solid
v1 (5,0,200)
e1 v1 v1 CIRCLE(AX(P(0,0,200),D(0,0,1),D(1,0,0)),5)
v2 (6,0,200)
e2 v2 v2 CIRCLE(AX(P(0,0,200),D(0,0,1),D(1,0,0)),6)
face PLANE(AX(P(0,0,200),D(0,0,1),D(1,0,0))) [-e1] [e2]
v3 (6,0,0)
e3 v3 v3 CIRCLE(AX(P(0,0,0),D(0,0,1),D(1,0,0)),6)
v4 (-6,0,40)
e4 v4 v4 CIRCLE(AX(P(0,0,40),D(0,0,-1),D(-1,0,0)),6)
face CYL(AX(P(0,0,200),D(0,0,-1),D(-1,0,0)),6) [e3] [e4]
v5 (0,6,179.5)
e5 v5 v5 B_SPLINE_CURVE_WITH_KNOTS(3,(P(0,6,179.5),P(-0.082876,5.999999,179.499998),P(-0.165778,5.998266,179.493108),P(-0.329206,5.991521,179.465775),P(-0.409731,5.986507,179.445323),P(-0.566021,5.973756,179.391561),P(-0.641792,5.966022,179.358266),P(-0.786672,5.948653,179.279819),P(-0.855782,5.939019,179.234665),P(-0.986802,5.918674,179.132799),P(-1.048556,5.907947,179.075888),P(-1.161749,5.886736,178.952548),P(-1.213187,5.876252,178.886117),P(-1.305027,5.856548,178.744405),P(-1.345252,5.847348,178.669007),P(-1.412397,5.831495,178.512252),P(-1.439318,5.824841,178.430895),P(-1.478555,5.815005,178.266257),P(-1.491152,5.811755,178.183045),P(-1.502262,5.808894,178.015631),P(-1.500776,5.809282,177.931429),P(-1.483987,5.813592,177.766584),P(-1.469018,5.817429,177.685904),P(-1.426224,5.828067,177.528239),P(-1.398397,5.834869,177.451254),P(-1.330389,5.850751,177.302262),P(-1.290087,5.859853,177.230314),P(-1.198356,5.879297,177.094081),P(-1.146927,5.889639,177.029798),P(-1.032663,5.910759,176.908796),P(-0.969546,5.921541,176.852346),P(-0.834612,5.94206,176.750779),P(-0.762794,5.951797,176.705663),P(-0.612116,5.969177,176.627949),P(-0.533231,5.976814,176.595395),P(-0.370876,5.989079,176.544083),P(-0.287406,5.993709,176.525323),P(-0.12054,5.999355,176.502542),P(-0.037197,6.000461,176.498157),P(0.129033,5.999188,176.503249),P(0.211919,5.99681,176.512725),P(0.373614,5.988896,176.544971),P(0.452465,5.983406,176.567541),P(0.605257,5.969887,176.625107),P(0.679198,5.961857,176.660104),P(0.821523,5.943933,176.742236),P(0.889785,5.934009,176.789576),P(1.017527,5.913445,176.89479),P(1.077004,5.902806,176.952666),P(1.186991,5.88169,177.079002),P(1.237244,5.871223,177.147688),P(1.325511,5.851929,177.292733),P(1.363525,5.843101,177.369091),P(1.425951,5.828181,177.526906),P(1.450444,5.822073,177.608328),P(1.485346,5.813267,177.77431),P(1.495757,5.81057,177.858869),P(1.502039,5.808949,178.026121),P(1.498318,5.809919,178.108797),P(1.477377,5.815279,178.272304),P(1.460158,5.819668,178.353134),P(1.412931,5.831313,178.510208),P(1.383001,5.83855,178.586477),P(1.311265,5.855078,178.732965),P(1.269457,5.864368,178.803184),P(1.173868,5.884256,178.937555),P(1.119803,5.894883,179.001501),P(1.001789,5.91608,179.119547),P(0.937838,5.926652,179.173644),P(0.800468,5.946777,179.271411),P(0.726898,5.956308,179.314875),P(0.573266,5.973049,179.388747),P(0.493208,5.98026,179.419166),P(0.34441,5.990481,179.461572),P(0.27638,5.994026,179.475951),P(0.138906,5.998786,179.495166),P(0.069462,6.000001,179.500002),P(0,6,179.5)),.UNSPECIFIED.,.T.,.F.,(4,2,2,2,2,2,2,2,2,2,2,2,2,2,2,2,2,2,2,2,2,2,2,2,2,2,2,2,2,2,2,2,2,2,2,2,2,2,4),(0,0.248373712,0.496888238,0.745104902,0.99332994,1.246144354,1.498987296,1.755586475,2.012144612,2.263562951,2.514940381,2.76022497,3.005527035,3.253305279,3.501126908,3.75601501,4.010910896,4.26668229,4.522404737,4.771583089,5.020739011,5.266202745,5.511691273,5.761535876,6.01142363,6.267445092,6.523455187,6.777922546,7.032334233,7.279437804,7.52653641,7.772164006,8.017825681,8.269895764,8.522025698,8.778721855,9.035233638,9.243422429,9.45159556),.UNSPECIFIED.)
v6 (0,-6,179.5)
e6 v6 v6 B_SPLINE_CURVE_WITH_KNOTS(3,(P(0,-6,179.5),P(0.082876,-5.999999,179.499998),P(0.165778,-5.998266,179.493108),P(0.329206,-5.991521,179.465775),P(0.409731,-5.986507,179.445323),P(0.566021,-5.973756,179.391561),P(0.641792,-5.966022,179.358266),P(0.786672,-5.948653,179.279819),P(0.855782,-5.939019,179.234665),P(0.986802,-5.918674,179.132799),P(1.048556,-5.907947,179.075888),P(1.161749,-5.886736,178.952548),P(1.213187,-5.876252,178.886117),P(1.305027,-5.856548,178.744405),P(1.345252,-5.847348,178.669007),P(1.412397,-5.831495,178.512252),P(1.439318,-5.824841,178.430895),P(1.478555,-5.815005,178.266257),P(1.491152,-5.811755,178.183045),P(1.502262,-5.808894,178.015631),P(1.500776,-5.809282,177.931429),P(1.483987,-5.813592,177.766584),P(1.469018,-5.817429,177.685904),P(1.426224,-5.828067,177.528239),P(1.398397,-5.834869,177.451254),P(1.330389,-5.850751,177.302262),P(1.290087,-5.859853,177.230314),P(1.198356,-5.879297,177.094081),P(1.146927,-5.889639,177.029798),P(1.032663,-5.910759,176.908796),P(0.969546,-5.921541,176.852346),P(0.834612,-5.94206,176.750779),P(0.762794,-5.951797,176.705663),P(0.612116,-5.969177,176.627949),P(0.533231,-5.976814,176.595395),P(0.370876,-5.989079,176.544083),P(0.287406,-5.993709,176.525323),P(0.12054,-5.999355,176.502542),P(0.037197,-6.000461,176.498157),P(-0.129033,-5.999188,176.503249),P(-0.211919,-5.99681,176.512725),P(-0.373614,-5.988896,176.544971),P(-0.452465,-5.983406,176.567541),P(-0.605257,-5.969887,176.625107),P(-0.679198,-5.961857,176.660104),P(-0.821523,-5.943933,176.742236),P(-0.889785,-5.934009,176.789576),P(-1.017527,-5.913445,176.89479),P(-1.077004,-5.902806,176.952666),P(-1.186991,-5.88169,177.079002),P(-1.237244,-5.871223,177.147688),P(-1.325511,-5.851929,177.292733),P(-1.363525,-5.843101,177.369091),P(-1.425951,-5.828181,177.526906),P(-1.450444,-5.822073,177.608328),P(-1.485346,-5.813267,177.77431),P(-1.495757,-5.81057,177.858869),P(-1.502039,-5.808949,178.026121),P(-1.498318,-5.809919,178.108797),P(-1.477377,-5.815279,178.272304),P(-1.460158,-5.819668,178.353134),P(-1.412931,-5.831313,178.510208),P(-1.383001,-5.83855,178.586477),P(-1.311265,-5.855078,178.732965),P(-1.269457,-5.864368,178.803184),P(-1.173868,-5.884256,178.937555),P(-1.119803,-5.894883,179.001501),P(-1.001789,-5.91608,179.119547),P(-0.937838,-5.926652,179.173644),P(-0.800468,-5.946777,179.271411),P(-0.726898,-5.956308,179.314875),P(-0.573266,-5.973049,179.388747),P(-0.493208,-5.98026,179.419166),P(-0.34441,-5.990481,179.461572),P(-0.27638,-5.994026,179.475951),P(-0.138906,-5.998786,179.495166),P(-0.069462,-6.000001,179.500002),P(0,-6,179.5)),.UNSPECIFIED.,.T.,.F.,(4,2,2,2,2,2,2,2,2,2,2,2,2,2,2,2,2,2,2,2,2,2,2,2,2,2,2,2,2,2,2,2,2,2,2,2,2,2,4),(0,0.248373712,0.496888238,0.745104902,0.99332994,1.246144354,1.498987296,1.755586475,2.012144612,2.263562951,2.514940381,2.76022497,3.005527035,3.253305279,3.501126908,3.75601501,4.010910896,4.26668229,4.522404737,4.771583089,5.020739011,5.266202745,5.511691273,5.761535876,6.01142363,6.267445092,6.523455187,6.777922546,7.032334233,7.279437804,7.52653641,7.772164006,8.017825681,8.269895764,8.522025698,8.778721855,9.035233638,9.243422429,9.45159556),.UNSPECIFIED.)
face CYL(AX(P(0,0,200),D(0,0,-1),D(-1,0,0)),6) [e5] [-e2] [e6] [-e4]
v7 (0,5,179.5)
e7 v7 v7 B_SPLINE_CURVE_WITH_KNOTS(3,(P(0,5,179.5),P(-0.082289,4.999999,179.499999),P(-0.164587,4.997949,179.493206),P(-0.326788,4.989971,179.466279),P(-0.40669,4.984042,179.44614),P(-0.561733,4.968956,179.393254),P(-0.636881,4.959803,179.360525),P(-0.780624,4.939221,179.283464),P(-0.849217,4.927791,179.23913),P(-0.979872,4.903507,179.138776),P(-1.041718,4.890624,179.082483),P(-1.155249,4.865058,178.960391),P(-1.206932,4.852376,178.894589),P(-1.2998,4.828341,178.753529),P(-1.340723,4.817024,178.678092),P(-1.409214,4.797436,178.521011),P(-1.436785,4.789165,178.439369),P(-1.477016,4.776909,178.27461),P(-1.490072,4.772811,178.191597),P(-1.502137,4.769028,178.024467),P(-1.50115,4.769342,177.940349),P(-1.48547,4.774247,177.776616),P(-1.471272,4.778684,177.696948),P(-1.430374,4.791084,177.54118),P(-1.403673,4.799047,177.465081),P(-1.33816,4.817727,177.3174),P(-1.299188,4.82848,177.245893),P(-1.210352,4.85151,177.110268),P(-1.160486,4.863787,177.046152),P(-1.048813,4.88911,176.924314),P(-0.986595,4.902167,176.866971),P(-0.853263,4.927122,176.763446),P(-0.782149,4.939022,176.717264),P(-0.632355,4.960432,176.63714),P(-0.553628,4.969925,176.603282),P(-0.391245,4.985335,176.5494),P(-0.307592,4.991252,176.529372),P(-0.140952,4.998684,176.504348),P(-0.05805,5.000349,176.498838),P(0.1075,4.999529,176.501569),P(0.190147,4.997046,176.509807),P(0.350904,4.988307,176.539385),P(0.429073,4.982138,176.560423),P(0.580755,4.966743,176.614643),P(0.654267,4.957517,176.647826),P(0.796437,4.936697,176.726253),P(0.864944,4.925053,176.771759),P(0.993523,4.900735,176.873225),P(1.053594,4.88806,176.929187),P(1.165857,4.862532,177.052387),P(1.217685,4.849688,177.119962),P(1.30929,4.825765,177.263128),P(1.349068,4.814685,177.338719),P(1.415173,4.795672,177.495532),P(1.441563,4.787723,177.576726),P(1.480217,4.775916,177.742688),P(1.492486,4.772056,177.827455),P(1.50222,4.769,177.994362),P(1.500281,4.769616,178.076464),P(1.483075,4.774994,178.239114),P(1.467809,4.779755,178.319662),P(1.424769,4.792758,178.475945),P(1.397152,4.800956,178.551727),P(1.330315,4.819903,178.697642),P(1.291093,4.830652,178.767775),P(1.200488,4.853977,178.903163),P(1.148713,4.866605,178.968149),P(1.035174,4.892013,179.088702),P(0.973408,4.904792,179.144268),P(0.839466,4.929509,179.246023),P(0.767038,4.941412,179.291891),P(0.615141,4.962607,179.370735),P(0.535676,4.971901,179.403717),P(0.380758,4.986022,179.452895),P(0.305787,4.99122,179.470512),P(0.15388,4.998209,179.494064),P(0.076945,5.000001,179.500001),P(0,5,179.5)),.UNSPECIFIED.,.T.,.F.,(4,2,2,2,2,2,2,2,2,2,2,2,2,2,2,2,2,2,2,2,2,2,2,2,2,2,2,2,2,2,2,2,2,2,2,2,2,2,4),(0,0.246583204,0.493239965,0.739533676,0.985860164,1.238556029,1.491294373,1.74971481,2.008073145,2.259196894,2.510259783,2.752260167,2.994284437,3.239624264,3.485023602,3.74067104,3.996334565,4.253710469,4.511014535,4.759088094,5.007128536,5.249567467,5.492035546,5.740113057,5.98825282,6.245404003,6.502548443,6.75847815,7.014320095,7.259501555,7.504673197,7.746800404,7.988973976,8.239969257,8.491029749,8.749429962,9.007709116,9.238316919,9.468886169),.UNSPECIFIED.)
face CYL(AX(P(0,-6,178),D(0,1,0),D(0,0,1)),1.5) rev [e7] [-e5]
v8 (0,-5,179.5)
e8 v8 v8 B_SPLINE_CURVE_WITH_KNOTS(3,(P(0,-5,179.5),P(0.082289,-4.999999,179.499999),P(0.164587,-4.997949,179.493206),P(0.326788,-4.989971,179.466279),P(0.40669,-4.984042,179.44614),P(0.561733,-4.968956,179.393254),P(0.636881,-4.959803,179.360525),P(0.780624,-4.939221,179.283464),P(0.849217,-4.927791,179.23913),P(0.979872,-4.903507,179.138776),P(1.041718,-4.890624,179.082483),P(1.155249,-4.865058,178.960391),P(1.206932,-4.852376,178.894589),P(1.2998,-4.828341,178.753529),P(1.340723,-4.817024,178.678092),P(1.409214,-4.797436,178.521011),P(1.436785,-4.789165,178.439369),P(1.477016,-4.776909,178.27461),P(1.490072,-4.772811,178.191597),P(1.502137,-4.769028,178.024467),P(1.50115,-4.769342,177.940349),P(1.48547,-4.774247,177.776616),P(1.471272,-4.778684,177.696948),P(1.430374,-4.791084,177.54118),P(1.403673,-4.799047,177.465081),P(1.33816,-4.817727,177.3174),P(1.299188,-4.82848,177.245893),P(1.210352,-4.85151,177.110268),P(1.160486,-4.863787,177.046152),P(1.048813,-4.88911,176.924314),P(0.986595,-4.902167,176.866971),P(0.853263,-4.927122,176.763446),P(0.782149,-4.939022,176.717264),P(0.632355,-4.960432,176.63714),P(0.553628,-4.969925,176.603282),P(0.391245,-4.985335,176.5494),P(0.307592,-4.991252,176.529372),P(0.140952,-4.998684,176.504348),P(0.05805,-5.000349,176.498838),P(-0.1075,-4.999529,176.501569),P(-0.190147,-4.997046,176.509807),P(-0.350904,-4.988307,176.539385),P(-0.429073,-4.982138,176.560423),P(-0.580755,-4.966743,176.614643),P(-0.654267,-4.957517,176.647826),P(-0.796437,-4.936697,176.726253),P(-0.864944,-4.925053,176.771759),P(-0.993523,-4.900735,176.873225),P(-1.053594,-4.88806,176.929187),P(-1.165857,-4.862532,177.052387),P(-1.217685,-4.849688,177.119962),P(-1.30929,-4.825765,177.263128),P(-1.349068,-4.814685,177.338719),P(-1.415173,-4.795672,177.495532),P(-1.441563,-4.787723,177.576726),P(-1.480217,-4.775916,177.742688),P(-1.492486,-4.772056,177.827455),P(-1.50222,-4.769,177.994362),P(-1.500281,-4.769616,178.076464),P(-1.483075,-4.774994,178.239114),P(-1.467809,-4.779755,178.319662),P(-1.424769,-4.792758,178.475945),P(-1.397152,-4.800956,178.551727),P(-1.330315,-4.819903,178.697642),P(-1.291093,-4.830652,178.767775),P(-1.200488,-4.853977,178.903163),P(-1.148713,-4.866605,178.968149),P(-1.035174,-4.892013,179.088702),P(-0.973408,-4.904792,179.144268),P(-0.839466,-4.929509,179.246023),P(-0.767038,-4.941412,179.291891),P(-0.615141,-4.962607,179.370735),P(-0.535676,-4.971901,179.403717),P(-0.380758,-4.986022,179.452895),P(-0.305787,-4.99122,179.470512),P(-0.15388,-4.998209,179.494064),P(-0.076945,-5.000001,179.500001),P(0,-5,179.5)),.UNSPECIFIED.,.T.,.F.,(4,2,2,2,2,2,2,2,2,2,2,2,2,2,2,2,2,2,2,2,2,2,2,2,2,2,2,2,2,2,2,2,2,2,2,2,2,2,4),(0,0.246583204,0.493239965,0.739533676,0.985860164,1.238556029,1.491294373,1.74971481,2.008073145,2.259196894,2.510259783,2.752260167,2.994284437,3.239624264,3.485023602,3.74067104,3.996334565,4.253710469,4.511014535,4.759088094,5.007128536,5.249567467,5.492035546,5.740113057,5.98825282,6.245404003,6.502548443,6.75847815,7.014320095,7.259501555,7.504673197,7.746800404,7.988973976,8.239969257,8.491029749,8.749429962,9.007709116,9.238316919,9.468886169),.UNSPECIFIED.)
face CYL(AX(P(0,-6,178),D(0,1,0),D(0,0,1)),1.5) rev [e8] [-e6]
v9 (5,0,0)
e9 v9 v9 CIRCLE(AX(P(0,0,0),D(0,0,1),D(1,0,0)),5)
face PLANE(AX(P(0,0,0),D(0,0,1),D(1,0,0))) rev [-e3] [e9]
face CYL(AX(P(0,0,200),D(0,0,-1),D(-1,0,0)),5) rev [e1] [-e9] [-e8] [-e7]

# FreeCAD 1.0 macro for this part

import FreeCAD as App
import Part
import Sketcher
Q = App.Units.Quantity

doc = App.newDocument("Part")
body = doc.addObject("PartDesign::Body", "Body")

sketch1 = body.newObject("Sketcher::SketchObject", "Sketch")
sketch1.AttachmentSupport = (doc.getObject("XY_Plane"), [""])
sketch1.MapMode = "FlatFace"
sketch1.addGeometry([
    Part.Circle(App.Vector(0, 0, 0), App.Vector(0, 0, 1), 6),
    Part.Circle(App.Vector(0, 0, 0), App.Vector(0, 0, 1), 5),
], False)
sketch1.addConstraint([
    Sketcher.Constraint("Coincident", 0, 3, -1, 1),
    Sketcher.Constraint("Coincident", 1, 3, -1, 1),
    Sketcher.Constraint("Diameter", 0, Q("12 mm")),
    Sketcher.Constraint("Diameter", 1, Q("10 mm")),
])
pad1 = body.newObject("PartDesign::Pad", "Pad")
pad1.Profile = sketch1
pad1.Length = 200

sketch2 = body.newObject("Sketcher::SketchObject", "Sketch001")
sketch2.AttachmentSupport = (doc.getObject("XZ_Plane"), [""])
sketch2.MapMode = "FlatFace"
sketch2.addGeometry(Part.Circle(App.Vector(0, 178, 0), App.Vector(0, 0, 1), 1.5), False)
sketch2.addConstraint([
    Sketcher.Constraint("PointOnObject", 0, 3, -2),
    Sketcher.Constraint("Diameter", 0, Q("3 mm")),
    Sketcher.Constraint("DistanceY", -1, 1, 0, 3, Q("178 mm")),
])
pocket1 = body.newObject("PartDesign::Pocket", "Pocket")
pocket1.Profile = sketch2
pocket1.Type = "ThroughAll"
pocket1.Midplane = True

doc.recompute()
